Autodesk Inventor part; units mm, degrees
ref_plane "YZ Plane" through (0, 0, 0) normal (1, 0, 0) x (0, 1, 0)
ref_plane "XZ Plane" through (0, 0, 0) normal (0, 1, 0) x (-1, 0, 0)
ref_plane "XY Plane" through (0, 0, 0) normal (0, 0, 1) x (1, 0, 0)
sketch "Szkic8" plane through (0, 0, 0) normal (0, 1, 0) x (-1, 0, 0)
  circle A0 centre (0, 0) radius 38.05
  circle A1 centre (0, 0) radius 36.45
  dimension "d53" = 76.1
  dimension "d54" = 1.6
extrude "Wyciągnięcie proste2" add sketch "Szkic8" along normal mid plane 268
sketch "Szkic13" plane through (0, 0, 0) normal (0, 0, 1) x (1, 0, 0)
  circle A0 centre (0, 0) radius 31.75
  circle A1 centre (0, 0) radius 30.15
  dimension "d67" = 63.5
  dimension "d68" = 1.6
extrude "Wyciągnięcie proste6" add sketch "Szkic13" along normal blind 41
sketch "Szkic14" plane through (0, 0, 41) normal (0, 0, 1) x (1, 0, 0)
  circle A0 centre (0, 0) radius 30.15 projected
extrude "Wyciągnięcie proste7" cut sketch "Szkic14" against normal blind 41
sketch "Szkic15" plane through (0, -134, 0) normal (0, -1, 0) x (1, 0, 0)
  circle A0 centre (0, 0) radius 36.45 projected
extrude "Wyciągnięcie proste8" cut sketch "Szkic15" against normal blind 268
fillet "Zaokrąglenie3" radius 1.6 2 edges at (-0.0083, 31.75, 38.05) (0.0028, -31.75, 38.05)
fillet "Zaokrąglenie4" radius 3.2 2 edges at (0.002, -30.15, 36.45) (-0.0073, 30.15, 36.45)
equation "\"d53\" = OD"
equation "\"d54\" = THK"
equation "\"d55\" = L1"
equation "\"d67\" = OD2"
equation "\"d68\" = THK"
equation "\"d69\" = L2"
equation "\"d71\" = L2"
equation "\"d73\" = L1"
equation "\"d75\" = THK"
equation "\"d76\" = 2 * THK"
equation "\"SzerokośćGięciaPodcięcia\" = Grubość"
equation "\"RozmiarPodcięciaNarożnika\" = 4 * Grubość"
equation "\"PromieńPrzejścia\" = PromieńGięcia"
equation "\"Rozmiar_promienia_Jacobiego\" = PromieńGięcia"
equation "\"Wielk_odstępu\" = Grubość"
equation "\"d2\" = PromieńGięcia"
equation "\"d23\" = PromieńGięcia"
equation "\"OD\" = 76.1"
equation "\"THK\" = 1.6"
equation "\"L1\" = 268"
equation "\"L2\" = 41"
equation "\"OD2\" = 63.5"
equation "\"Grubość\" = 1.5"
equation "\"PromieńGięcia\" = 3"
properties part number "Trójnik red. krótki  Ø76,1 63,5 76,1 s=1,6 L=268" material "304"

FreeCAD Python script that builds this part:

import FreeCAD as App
import Part
import Sketcher
Q = App.Units.Quantity


def edges_at(feature, points):
    """Names of the edges that pass closest to the given points."""
    edges = feature.Shape.Edges
    near = lambda p: min(range(len(edges)), key=lambda i: edges[i].distToShape(Part.Vertex(*p))[0])
    return sorted({f"Edge{near(p) + 1}" for p in points})

doc = App.newDocument("Part")
body = doc.addObject("PartDesign::Body", "Body")

# Sketch on XZ plane
sketch1 = body.newObject("Sketcher::SketchObject", "Sketch")
sketch1.AttachmentSupport = (doc.getObject("XZ_Plane"), [""])
sketch1.MapMode = "FlatFace"
sketch1.addGeometry([
    Part.Circle(App.Vector(0, 0, 0), App.Vector(0, 0, 1), 38),
    Part.Circle(App.Vector(0, 0, 0), App.Vector(0, 0, 1), 36),
], False)
sketch1.addConstraint([
    Sketcher.Constraint("Coincident", 0, 3, -1, 1),
    Sketcher.Constraint("Coincident", 1, 3, -1, 1),
    Sketcher.Constraint("Diameter", 0, Q("76.1 mm")),
    Sketcher.Constraint("Diameter", 1, Q("72.9 mm")),
])
pad1 = body.newObject("PartDesign::Pad", "Pad")
pad1.Profile = sketch1
pad1.Length = 268
pad1.Midplane = True

# Sketch on XY plane
sketch2 = body.newObject("Sketcher::SketchObject", "Sketch001")
sketch2.AttachmentSupport = (doc.getObject("XY_Plane"), [""])
sketch2.MapMode = "FlatFace"
sketch2.addGeometry([
    Part.Circle(App.Vector(0, 0, 0), App.Vector(0, 0, 1), 32),
    Part.Circle(App.Vector(0, 0, 0), App.Vector(0, 0, 1), 30),
], False)
sketch2.addConstraint([
    Sketcher.Constraint("Coincident", 0, 3, -1, 1),
    Sketcher.Constraint("Coincident", 1, 3, -1, 1),
    Sketcher.Constraint("Diameter", 0, Q("63.5 mm")),
    Sketcher.Constraint("Diameter", 1, Q("60.3 mm")),
])
pad2 = body.newObject("PartDesign::Pad", "Pad001")
pad2.Profile = sketch2
pad2.Length = 41

# Sketch on XY plane
sketch3 = body.newObject("Sketcher::SketchObject", "Sketch002")
sketch3.AttachmentSupport = (doc.getObject("XY_Plane"), [""])
sketch3.MapMode = "FlatFace"
sketch3.AttachmentOffset = App.Placement(App.Vector(0, 0, 41), App.Rotation())
sketch3.addGeometry(Part.Circle(App.Vector(0, 0, 0), App.Vector(0, 0, 1), 30), False)
sketch3.addConstraint([
    Sketcher.Constraint("Coincident", 0, 3, -1, 1),
    Sketcher.Constraint("Diameter", 0, Q("60.3 mm")),
])
pocket1 = body.newObject("PartDesign::Pocket", "Pocket")
pocket1.Profile = sketch3
pocket1.Length = 41

# Sketch on XZ plane
sketch4 = body.newObject("Sketcher::SketchObject", "Sketch003")
sketch4.AttachmentSupport = (doc.getObject("XZ_Plane"), [""])
sketch4.MapMode = "FlatFace"
sketch4.AttachmentOffset = App.Placement(App.Vector(0, 0, 134), App.Rotation())
sketch4.addGeometry(Part.Circle(App.Vector(0, 0, 0), App.Vector(0, 0, 1), 36), False)
sketch4.addConstraint([
    Sketcher.Constraint("Coincident", 0, 3, -1, 1),
    Sketcher.Constraint("Diameter", 0, Q("72.9 mm")),
])
pocket2 = body.newObject("PartDesign::Pocket", "Pocket001")
pocket2.Profile = sketch4
pocket2.Length = 268
doc.recompute()

fillet = body.newObject("PartDesign::Fillet", "Fillet")
fillet.Base = (pocket2, edges_at(pocket2, [(-0.008, 31.75, 38.05), (0.003, -31.75, 38.05)]))
fillet.Radius = 1.6
doc.recompute()

fillet2 = body.newObject("PartDesign::Fillet", "Fillet001")
fillet2.Base = (fillet, edges_at(fillet, [(0.002, -30.15, 36.45), (-0.007, 30.15, 36.45)]))
fillet2.Radius = 3.2

doc.recompute()
